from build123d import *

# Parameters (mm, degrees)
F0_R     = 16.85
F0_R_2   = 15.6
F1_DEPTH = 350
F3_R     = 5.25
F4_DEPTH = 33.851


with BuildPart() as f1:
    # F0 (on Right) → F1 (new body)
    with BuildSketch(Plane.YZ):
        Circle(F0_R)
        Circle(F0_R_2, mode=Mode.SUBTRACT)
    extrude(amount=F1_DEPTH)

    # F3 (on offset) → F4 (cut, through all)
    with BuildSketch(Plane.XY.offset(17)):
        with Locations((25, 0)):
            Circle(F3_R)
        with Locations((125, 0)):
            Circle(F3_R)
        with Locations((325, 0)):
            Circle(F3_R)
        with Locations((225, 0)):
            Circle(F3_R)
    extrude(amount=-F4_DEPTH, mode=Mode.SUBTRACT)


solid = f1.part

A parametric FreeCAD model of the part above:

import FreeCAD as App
import Part
import Sketcher
from FreeCAD import Vector

doc = App.newDocument("Part")
body = doc.addObject("PartDesign::Body", "Body")

sketch1 = body.newObject("Sketcher::SketchObject", "Sketch")
sketch1.AttachmentSupport = (doc.getObject("YZ_Plane"), [""])
sketch1.MapMode = "FlatFace"
sketch1.addGeometry([
    Part.Circle(Vector(0, 0, 0), Vector(0, 0, 1), 16.85),
    Part.Circle(Vector(0, 0, 0), Vector(0, 0, 1), 15.6),
], False)
sketch1.addConstraint([
    Sketcher.Constraint("Coincident", 0, 3, -1, 1),
    Sketcher.Constraint("Coincident", 1, 3, -1, 1),
    Sketcher.Constraint("Diameter", 0, 33.7),
    Sketcher.Constraint("Diameter", 1, 31.2),
])
pad1 = body.newObject("PartDesign::Pad", "Pad")
pad1.Profile = sketch1
pad1.Length = 350

sketch2 = body.newObject("Sketcher::SketchObject", "Sketch001")
sketch2.AttachmentSupport = (doc.getObject("XY_Plane"), [""])
sketch2.MapMode = "FlatFace"
sketch2.AttachmentOffset = App.Placement(Vector(0, 0, 17), App.Rotation())
sketch2.addGeometry([
    Part.Circle(Vector(25, 0, 0), Vector(0, 0, 1), 5.25),
    Part.Circle(Vector(125, 0, 0), Vector(0, 0, 1), 5.25),
    Part.Circle(Vector(325, 0, 0), Vector(0, 0, 1), 5.25),
    Part.Circle(Vector(225, 0, 0), Vector(0, 0, 1), 5.25),
], False)
sketch2.addConstraint([
    Sketcher.Constraint("Equal", 0, 1),
    Sketcher.Constraint("Equal", 1, 2),
    Sketcher.Constraint("Equal", 2, 3),
    Sketcher.Constraint("PointOnObject", 0, 3, -1),
    Sketcher.Constraint("PointOnObject", 1, 3, -1),
    Sketcher.Constraint("PointOnObject", 2, 3, -1),
    Sketcher.Constraint("PointOnObject", 3, 3, -1),
    Sketcher.Constraint("Diameter", 0, 10.5),
    Sketcher.Constraint("DistanceX", -1, 1, 0, 3, 25.0),
    Sketcher.Constraint("DistanceX", -1, 1, 1, 3, 125.0),
    Sketcher.Constraint("DistanceX", -1, 1, 2, 3, 325.0),
    Sketcher.Constraint("DistanceX", -1, 1, 3, 3, 225.0),
])
pocket1 = body.newObject("PartDesign::Pocket", "Pocket")
pocket1.Profile = sketch2
pocket1.Type = "ThroughAll"

doc.recompute()
